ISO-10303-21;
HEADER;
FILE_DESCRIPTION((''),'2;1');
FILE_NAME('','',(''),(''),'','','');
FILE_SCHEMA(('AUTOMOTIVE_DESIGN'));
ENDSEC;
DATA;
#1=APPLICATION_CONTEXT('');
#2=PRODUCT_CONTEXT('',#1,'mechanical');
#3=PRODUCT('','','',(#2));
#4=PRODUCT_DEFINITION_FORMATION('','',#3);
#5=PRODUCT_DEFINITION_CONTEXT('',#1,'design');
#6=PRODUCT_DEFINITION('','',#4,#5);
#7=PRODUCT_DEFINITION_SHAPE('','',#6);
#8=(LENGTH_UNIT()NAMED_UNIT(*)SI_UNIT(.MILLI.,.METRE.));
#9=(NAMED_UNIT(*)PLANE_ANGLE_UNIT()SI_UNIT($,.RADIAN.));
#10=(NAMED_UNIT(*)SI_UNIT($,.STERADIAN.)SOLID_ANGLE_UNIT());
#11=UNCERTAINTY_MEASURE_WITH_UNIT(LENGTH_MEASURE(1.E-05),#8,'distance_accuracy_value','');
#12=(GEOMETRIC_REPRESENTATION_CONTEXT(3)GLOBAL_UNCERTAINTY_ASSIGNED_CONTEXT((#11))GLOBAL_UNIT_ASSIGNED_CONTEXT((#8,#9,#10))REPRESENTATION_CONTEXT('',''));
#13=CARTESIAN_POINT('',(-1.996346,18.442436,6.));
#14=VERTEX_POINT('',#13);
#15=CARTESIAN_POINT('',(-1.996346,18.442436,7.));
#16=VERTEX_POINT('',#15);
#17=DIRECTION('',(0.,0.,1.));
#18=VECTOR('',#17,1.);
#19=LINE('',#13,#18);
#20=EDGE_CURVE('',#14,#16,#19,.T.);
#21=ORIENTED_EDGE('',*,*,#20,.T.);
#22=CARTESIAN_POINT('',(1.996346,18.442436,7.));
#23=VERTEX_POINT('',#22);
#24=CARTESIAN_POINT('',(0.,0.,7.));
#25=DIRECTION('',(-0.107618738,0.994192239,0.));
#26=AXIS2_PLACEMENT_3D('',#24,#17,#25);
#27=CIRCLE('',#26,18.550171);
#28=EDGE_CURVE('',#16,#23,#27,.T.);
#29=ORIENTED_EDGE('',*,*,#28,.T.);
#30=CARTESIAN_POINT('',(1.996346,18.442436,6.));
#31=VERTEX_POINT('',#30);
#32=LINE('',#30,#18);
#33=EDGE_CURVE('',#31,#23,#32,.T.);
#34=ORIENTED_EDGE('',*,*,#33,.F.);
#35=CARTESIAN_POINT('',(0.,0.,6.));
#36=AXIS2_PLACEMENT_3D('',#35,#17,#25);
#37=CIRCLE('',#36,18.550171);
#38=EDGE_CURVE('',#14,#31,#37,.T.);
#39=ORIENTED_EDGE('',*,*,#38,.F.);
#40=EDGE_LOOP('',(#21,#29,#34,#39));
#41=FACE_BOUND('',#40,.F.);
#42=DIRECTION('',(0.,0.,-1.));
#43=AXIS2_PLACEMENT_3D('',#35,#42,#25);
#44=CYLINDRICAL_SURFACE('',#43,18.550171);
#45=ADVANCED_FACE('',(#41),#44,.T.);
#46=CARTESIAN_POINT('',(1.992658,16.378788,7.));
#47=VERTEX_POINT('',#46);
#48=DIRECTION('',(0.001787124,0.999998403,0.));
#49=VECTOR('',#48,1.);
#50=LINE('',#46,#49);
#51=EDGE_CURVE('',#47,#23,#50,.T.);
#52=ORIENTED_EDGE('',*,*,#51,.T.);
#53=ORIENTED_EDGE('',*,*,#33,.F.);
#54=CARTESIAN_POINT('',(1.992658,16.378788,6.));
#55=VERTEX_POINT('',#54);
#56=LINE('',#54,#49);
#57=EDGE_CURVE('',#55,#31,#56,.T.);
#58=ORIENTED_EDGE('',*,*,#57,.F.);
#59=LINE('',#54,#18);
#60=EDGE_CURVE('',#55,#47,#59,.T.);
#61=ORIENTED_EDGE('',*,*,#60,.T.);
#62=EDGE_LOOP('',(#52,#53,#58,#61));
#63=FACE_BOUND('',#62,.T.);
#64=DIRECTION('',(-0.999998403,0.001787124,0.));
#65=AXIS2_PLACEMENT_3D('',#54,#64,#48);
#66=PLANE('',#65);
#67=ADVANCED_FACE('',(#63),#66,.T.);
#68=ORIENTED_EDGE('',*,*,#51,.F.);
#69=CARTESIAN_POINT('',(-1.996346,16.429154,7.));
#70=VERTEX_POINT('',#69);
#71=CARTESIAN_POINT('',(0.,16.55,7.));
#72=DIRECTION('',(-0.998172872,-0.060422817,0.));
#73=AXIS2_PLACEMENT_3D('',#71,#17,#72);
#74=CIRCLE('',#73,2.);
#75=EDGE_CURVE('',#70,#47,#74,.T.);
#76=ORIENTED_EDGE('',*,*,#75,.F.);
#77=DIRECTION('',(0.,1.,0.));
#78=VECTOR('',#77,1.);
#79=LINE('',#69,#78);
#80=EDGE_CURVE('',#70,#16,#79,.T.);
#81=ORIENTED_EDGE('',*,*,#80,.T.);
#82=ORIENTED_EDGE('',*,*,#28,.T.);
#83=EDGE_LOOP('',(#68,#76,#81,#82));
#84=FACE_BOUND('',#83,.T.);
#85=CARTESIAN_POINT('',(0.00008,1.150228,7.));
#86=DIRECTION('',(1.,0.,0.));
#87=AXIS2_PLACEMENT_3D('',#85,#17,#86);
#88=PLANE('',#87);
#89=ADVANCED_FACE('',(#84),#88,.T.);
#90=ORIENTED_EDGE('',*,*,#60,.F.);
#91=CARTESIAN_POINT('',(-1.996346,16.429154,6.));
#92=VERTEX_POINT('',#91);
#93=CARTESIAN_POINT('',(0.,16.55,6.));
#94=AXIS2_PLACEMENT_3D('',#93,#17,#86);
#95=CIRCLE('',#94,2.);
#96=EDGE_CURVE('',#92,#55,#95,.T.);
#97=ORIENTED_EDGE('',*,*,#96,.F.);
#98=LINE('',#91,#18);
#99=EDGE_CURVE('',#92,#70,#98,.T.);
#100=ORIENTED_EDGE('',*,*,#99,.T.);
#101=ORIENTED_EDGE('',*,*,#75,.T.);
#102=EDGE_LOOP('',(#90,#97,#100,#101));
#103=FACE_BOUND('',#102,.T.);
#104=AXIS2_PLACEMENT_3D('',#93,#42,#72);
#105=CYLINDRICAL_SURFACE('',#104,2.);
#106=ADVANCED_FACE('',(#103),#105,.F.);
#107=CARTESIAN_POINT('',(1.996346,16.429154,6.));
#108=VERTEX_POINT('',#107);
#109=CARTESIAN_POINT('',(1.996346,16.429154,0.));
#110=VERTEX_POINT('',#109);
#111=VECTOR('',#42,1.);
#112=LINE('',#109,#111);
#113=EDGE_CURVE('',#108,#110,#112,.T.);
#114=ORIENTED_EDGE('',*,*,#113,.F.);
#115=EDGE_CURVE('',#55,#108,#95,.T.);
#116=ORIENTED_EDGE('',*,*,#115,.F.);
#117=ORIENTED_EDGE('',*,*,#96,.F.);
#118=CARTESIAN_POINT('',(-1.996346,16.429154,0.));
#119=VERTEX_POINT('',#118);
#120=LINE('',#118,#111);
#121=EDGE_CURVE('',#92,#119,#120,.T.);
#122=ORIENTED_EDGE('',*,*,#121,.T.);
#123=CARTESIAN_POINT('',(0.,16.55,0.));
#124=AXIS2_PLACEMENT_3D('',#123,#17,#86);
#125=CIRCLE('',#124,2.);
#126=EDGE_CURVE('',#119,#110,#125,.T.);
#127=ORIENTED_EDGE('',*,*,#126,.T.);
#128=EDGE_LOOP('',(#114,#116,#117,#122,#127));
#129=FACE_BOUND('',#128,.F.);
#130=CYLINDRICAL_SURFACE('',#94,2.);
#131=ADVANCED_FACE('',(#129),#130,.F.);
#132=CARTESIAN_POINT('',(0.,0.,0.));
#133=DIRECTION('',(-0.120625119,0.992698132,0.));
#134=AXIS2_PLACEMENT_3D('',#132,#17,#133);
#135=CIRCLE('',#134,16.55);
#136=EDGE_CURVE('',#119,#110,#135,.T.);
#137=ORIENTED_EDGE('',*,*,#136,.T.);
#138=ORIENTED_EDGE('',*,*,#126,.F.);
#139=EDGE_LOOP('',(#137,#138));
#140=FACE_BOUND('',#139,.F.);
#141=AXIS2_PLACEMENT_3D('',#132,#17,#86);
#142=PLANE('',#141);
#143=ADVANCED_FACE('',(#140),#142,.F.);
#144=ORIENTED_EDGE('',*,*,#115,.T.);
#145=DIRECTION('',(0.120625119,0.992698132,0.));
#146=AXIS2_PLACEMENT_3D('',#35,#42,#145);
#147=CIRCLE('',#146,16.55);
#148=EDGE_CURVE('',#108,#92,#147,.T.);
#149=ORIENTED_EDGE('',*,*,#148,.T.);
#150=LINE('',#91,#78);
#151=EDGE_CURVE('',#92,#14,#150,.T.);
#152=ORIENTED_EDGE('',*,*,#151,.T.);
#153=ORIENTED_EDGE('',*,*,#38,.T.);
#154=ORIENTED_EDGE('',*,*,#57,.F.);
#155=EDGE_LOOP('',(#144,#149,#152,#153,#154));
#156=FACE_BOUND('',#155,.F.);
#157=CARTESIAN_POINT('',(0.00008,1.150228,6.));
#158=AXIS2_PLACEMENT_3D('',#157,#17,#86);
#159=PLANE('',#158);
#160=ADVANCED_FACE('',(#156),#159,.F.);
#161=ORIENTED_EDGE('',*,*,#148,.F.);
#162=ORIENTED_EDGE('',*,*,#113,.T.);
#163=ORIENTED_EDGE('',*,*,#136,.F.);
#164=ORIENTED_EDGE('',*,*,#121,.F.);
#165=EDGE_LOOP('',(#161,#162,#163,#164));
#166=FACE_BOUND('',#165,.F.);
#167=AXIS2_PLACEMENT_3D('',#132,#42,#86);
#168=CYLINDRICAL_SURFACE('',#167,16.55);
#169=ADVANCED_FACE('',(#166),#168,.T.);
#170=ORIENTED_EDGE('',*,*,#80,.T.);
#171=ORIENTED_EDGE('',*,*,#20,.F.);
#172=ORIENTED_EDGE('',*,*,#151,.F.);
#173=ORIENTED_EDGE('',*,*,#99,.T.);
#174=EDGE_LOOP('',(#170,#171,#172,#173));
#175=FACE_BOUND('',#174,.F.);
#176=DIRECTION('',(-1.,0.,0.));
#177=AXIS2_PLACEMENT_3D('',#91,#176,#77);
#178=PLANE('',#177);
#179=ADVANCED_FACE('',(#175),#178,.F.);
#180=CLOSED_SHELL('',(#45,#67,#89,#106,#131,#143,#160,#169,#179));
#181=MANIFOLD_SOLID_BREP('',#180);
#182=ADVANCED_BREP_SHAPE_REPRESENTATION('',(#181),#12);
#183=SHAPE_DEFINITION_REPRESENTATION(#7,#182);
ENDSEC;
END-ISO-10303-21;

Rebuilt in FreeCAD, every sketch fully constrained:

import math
import FreeCAD as App
import Part
import Sketcher

V = App.Vector
Q = App.Units.Quantity

doc = App.newDocument("Part")
body = doc.addObject("PartDesign::Body", "Body")

sketch1 = body.newObject("Sketcher::SketchObject", "Sketch")
sketch1.AttachmentSupport = (doc.getObject("XY_Plane"), [""])
sketch1.MapMode = "FlatFace"
sketch1.addGeometry(Part.Circle(V(0, 0, 0), V(0, 0, 1), 16.55), False)
sketch1.addConstraint([
    Sketcher.Constraint("Coincident", 0, 3, -1, 1),
    Sketcher.Constraint("Diameter", 0, Q("33.1 mm")),
])
pad1 = body.newObject("PartDesign::Pad", "Pad")
pad1.Profile = sketch1
pad1.Length = 6

sketch2 = body.newObject("Sketcher::SketchObject", "Sketch001")
sketch2.AttachmentSupport = (doc.getObject("XY_Plane"), [""])
sketch2.MapMode = "FlatFace"
sketch2.AttachmentOffset = App.Placement(V(0, 0, 6), App.Rotation())
sketch2.addGeometry(Part.Circle(V(0, 16.55, 0), V(0, 0, 1), 2), False)
sketch2.addConstraint([
    Sketcher.Constraint("PointOnObject", 0, 3, -2),
    Sketcher.Constraint("Diameter", 0, Q("4 mm")),
    Sketcher.Constraint("DistanceY", -1, 1, 0, 3, Q("16.55 mm")),
])
pocket1 = body.newObject("PartDesign::Pocket", "Pocket")
pocket1.Profile = sketch2
pocket1.Type = "ThroughAll"

sketch3 = body.newObject("Sketcher::SketchObject", "Sketch002")
sketch3.AttachmentSupport = (doc.getObject("XY_Plane"), [""])
sketch3.MapMode = "FlatFace"
sketch3.AttachmentOffset = App.Placement(V(0, 0, 6), App.Rotation())
sketch3.addGeometry([
    Part.ArcOfCircle(Part.Circle(V(0, 0, 0), V(0, 0, 1), 18.550171), math.radians(96.178064), math.radians(443.821936)),
    Part.LineSegment(V(1.996346, 18.442436, 0), V(1.992658, 16.378788, 0)),
    Part.ArcOfCircle(Part.Circle(V(0, 16.55, 0), V(0, 0, 1), 2), math.radians(-176.535918), math.radians(-4.910863)),
    Part.LineSegment(V(-1.996346, 16.429154, 0), V(-1.996346, 18.442436, 0)),
], False)
sketch3.addConstraint([
    Sketcher.Constraint("Coincident", 0, 2, 1, 1),
    Sketcher.Constraint("Coincident", 1, 2, 2, 2),
    Sketcher.Constraint("Coincident", 2, 1, 3, 1),
    Sketcher.Constraint("Coincident", 3, 2, 0, 1),
    Sketcher.Constraint("Vertical", 3),
    Sketcher.Constraint("Coincident", 0, 3, -1, 1),
    Sketcher.Constraint("PointOnObject", 2, 3, -2),
    Sketcher.Constraint("Horizontal", 0, 2, 3, 2),
    Sketcher.Constraint("Radius", 2, Q("2 mm")),
    Sketcher.Constraint("DistanceY", -1, 1, 2, 3, Q("16.55 mm")),
    Sketcher.Constraint("Radius", 0, Q("18.550171 mm")),
    Sketcher.Constraint("Distance", 1, Q("2.063651 mm")),
    Sketcher.Constraint("DistanceY", 3, 1, 3, 2, Q("2.013282 mm")),
])
pad2 = body.newObject("PartDesign::Pad", "Pad001")
pad2.Profile = sketch3
pad2.Length = 1

doc.recompute()
